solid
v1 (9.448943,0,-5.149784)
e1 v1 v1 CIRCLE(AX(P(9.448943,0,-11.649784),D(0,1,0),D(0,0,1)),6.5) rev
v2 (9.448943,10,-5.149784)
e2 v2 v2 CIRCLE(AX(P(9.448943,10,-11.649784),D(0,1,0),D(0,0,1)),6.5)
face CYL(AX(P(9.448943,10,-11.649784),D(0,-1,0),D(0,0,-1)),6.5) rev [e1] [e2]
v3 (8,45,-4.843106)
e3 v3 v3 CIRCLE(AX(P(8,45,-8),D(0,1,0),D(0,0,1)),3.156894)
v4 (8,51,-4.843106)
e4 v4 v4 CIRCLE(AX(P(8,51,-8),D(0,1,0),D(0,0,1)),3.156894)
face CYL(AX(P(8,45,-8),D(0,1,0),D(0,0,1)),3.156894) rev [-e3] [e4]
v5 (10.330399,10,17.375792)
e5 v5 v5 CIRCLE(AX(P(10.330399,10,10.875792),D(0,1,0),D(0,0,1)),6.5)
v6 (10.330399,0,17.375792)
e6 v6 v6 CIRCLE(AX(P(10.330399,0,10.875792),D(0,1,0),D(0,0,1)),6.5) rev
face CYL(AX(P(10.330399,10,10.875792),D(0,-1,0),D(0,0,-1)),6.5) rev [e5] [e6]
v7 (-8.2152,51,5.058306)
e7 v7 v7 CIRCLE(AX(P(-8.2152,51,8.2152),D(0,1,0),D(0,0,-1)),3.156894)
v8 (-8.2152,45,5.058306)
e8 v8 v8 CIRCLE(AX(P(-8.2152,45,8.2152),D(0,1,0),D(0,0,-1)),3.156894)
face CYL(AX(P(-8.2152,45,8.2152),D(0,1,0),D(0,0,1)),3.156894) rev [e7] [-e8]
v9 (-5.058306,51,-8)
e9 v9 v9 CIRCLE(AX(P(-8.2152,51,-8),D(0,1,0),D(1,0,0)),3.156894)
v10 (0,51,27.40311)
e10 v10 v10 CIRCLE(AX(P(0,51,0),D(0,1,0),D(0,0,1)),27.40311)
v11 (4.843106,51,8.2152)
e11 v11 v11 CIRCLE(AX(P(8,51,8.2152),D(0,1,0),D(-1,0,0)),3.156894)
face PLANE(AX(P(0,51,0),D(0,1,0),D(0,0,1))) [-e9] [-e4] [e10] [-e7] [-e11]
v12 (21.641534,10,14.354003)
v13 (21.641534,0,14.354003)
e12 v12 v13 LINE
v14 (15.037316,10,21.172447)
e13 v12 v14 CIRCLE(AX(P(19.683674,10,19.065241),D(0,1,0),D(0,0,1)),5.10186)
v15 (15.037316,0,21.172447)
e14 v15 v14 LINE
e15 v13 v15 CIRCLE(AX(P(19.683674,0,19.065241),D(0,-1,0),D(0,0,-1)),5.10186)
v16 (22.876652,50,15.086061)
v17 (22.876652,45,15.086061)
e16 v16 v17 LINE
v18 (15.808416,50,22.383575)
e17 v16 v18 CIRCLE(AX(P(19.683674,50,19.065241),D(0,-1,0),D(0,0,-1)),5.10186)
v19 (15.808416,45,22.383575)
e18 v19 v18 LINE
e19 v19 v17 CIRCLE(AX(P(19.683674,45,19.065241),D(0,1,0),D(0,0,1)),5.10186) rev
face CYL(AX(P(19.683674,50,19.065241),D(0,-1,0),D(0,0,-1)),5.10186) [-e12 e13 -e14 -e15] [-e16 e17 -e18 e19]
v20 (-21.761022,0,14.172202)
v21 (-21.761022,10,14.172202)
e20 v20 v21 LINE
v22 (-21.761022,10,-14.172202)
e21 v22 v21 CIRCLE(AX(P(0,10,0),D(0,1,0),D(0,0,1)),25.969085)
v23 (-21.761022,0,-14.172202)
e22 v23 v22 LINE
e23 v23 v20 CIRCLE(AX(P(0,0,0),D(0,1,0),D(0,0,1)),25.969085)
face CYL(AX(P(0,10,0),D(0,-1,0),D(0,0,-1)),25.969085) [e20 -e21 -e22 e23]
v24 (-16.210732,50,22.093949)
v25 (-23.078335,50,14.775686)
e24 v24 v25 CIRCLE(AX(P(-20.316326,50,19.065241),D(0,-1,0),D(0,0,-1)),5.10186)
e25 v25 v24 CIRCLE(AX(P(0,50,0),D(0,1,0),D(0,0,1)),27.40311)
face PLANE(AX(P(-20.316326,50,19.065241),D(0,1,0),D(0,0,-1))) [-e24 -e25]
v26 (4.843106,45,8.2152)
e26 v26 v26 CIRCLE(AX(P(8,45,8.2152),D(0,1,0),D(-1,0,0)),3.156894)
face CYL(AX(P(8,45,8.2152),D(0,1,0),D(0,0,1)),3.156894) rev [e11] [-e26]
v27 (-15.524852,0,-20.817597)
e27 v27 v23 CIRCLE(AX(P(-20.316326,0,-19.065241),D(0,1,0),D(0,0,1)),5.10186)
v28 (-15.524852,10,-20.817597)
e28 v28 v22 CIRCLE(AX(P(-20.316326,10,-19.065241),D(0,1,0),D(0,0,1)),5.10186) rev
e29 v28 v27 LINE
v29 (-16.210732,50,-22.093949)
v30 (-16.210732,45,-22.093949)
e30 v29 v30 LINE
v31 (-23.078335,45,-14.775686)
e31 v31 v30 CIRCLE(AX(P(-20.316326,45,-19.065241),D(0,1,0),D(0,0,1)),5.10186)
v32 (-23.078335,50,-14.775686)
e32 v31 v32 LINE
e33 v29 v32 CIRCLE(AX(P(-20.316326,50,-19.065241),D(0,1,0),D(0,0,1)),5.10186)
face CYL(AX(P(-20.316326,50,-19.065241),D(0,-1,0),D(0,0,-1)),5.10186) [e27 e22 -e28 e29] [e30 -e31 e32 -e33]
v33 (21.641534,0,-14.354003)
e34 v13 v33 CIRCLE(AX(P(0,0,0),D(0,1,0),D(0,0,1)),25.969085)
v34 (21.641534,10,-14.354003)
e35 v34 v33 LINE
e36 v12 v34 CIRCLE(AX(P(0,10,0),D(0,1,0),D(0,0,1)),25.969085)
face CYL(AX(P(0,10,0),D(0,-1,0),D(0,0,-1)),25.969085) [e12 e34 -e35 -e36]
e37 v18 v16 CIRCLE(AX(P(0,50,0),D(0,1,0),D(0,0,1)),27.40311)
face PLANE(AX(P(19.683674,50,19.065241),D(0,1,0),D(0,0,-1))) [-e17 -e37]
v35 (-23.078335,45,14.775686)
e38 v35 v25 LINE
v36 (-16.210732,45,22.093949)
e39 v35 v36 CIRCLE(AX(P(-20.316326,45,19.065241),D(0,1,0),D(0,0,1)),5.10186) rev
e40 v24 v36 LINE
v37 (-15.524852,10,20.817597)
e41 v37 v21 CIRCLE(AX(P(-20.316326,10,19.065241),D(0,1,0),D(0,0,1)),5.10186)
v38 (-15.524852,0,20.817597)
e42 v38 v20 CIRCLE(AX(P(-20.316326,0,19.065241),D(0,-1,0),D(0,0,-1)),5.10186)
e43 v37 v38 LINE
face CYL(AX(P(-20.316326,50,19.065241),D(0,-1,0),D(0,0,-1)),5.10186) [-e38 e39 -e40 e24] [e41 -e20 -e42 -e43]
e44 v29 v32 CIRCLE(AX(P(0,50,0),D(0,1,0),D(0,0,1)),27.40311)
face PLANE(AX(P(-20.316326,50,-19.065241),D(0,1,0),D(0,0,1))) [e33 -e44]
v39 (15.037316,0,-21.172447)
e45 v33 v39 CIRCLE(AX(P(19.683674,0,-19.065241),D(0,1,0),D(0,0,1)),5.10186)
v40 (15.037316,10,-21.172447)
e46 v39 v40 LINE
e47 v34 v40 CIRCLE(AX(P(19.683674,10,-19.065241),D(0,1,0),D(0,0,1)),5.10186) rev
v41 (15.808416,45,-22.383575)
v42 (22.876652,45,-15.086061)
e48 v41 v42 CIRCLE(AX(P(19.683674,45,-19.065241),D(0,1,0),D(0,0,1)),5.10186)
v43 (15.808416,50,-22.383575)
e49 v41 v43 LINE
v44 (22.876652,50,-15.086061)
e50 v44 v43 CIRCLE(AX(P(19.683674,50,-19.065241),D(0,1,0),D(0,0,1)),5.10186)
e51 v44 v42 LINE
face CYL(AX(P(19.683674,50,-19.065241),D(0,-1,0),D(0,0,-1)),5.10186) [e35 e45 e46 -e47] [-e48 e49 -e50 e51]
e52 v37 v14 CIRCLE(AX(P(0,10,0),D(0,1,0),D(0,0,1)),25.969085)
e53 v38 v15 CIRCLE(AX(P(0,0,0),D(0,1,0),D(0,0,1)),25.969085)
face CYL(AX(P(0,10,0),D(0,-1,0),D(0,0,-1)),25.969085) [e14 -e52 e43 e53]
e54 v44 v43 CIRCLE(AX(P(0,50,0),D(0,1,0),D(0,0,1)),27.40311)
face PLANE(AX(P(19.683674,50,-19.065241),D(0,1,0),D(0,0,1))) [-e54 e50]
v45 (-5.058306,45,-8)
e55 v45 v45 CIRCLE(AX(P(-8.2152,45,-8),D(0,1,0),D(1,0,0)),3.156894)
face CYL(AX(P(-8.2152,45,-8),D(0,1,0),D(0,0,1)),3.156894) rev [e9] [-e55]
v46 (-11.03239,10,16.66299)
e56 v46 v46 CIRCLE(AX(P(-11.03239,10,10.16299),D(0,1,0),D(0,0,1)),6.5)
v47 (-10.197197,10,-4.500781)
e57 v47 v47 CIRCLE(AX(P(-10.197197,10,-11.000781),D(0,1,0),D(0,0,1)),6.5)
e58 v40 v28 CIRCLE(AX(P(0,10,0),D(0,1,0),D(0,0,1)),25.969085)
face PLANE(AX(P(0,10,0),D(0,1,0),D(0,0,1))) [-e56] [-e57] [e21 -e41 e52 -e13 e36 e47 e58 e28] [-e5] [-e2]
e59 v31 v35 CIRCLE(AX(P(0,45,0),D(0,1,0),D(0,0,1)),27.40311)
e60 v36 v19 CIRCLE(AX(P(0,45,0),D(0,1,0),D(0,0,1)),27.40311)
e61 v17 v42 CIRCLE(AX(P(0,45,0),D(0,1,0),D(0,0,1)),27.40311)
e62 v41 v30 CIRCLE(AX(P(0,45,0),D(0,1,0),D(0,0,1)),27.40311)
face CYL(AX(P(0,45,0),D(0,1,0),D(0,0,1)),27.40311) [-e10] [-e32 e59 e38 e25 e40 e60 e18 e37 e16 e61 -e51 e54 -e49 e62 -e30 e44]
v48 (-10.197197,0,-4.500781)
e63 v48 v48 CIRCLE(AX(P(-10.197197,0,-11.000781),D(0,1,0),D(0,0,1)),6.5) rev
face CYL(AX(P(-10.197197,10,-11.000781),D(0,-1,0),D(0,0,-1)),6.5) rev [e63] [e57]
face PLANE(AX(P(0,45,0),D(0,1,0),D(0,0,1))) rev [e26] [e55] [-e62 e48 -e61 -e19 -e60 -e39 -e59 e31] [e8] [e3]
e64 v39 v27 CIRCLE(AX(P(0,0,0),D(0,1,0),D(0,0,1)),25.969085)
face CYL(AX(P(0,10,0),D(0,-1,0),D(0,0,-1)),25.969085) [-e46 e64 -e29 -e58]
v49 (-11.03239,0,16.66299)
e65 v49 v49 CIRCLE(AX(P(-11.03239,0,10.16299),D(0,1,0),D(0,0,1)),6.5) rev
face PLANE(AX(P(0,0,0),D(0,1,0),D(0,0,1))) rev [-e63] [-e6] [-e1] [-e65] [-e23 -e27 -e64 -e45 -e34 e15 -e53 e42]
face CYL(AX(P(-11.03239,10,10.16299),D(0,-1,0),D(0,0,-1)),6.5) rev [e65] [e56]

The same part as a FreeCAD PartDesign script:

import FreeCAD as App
import Part
import Sketcher

V = App.Vector

doc = App.newDocument("Part")
body = doc.addObject("PartDesign::Body", "Body")

sketch1 = body.newObject("Sketcher::SketchObject", "Sketch")
sketch1.AttachmentSupport = (doc.getObject("XZ_Plane"), [""])
sketch1.MapMode = "FlatFace"
sketch1.addGeometry(Part.Circle(V(0, 0, 0), V(0, 0, 1), 26), False)
sketch1.addConstraint([
    Sketcher.Constraint("Coincident", 0, 3, -1, 1),
    Sketcher.Constraint("Diameter", 0, 51.93817),
])
pad1 = body.newObject("PartDesign::Pad", "Pad")
pad1.Profile = sketch1
pad1.Length = 10
pad1.Reversed = True

sketch2 = body.newObject("Sketcher::SketchObject", "Sketch001")
sketch2.AttachmentSupport = (doc.getObject("XZ_Plane"), [""])
sketch2.MapMode = "FlatFace"
sketch2.addGeometry([
    Part.Circle(V(-10, -11, 0), V(0, 0, 1), 6),
    Part.Circle(V(-11, 10, 0), V(0, 0, 1), 6),
    Part.Circle(V(10, 11, 0), V(0, 0, 1), 6),
    Part.Circle(V(9, -12, 0), V(0, 0, 1), 6),
], False)
sketch2.addConstraint([
    Sketcher.Constraint("Equal", 0, 1),
    Sketcher.Constraint("Equal", 1, 2),
    Sketcher.Constraint("Equal", 2, 3),
    Sketcher.Constraint("Diameter", 0, 13.0),
    Sketcher.Constraint("DistanceX", -1, 1, 2, 3, 10.330399),
    Sketcher.Constraint("DistanceY", 0, 3, -1, 1, 11.000781),
    Sketcher.Constraint("DistanceX", 1, 3, -1, 1, 11.03239),
    Sketcher.Constraint("DistanceY", -1, 1, 1, 3, 10.16299),
    Sketcher.Constraint("DistanceX", 0, 3, 3, 3, 19.64614),
    Sketcher.Constraint("DistanceX", 0, 3, -1, 1, 10.197197),
    Sketcher.Constraint("DistanceY", -1, 1, 2, 3, 10.875792),
    Sketcher.Constraint("DistanceY", 3, 3, -1, 1, 11.649784),
])
pocket1 = body.newObject("PartDesign::Pocket", "Pocket")
pocket1.Profile = sketch2
pocket1.Type = "ThroughAll"
pocket1.Midplane = True

sketch3 = body.newObject("Sketcher::SketchObject", "Sketch002")
sketch3.AttachmentSupport = (doc.getObject("XZ_Plane"), [""])
sketch3.MapMode = "FlatFace"
sketch3.addGeometry([
    Part.Circle(V(-20, -19, 0), V(0, 0, 1), 5),
    Part.Circle(V(20, -19, 0), V(0, 0, 1), 5),
], False)
sketch3.addConstraint([
    Sketcher.Constraint("Equal", 0, 1),
    Sketcher.Constraint("Horizontal", 0, 3, 1, 3),
    Sketcher.Constraint("DistanceX", 0, 3, 1, 3, 40.0),
    Sketcher.Constraint("Diameter", 0, 10.203719),
    Sketcher.Constraint("DistanceY", 0, 3, -1, 1, 19.065241),
    Sketcher.Constraint("DistanceX", 0, 3, -1, 1, 20.316326),
])
pad2 = body.newObject("PartDesign::Pad", "Pad001")
pad2.Profile = sketch3
pad2.Length = 50
pad2.Reversed = True
doc.recompute()

mirrored = body.newObject("PartDesign::Mirrored", "Mirrored")
mirrored.Originals = [pad2]
mirrored.MirrorPlane = (doc.getObject("XY_Plane"), [""])
body.Tip = mirrored

sketch4 = body.newObject("Sketcher::SketchObject", "Sketch003")
sketch4.AttachmentSupport = (doc.getObject("XZ_Plane"), [""])
sketch4.MapMode = "FlatFace"
sketch4.AttachmentOffset = App.Placement(V(0, 0, -50), App.Rotation())
sketch4.addGeometry(Part.Circle(V(0, 0, 0), V(0, 0, 1), 27), False)
sketch4.addConstraint([
    Sketcher.Constraint("Coincident", 0, 3, -1, 1),
    Sketcher.Constraint("Diameter", 0, 54.80622),
])
pad3 = body.newObject("PartDesign::Pad", "Pad002")
pad3.Profile = sketch4
pad3.Type = "TwoLengths"
pad3.Length = 1
pad3.Length2 = 5
pad3.Reversed = True

sketch5 = body.newObject("Sketcher::SketchObject", "Sketch004")
sketch5.AttachmentSupport = (doc.getObject("XZ_Plane"), [""])
sketch5.MapMode = "FlatFace"
sketch5.AttachmentOffset = App.Placement(V(0, 0, -51), App.Rotation())
sketch5.addGeometry(Part.Circle(V(8, -8, 0), V(0, 0, 1), 3.2), False)
sketch5.addConstraint([
    Sketcher.Constraint("DistanceX", -1, 1, 0, 3, 8.0),
    Sketcher.Constraint("DistanceY", 0, 3, -1, 1, 8.0),
    Sketcher.Constraint("Diameter", 0, 6.313788),
])
pocket2 = body.newObject("PartDesign::Pocket", "Pocket001")
pocket2.Profile = sketch5
pocket2.Length = 6
pocket2.Reversed = True
doc.recompute()

datumline = body.newObject("PartDesign::Line", "DatumLine")
datumline.Placement = App.Placement(V(-0.1076, 0, 0.1076), App.Rotation(V(0, 0, 1), V(0, 1, 0)))
polarpattern = body.newObject("PartDesign::PolarPattern", "PolarPattern")
polarpattern.Originals = [pocket2]
polarpattern.Axis = (datumline, [""])
polarpattern.Angle = 360
polarpattern.Occurrences = 4
body.Tip = polarpattern

doc.recompute()
